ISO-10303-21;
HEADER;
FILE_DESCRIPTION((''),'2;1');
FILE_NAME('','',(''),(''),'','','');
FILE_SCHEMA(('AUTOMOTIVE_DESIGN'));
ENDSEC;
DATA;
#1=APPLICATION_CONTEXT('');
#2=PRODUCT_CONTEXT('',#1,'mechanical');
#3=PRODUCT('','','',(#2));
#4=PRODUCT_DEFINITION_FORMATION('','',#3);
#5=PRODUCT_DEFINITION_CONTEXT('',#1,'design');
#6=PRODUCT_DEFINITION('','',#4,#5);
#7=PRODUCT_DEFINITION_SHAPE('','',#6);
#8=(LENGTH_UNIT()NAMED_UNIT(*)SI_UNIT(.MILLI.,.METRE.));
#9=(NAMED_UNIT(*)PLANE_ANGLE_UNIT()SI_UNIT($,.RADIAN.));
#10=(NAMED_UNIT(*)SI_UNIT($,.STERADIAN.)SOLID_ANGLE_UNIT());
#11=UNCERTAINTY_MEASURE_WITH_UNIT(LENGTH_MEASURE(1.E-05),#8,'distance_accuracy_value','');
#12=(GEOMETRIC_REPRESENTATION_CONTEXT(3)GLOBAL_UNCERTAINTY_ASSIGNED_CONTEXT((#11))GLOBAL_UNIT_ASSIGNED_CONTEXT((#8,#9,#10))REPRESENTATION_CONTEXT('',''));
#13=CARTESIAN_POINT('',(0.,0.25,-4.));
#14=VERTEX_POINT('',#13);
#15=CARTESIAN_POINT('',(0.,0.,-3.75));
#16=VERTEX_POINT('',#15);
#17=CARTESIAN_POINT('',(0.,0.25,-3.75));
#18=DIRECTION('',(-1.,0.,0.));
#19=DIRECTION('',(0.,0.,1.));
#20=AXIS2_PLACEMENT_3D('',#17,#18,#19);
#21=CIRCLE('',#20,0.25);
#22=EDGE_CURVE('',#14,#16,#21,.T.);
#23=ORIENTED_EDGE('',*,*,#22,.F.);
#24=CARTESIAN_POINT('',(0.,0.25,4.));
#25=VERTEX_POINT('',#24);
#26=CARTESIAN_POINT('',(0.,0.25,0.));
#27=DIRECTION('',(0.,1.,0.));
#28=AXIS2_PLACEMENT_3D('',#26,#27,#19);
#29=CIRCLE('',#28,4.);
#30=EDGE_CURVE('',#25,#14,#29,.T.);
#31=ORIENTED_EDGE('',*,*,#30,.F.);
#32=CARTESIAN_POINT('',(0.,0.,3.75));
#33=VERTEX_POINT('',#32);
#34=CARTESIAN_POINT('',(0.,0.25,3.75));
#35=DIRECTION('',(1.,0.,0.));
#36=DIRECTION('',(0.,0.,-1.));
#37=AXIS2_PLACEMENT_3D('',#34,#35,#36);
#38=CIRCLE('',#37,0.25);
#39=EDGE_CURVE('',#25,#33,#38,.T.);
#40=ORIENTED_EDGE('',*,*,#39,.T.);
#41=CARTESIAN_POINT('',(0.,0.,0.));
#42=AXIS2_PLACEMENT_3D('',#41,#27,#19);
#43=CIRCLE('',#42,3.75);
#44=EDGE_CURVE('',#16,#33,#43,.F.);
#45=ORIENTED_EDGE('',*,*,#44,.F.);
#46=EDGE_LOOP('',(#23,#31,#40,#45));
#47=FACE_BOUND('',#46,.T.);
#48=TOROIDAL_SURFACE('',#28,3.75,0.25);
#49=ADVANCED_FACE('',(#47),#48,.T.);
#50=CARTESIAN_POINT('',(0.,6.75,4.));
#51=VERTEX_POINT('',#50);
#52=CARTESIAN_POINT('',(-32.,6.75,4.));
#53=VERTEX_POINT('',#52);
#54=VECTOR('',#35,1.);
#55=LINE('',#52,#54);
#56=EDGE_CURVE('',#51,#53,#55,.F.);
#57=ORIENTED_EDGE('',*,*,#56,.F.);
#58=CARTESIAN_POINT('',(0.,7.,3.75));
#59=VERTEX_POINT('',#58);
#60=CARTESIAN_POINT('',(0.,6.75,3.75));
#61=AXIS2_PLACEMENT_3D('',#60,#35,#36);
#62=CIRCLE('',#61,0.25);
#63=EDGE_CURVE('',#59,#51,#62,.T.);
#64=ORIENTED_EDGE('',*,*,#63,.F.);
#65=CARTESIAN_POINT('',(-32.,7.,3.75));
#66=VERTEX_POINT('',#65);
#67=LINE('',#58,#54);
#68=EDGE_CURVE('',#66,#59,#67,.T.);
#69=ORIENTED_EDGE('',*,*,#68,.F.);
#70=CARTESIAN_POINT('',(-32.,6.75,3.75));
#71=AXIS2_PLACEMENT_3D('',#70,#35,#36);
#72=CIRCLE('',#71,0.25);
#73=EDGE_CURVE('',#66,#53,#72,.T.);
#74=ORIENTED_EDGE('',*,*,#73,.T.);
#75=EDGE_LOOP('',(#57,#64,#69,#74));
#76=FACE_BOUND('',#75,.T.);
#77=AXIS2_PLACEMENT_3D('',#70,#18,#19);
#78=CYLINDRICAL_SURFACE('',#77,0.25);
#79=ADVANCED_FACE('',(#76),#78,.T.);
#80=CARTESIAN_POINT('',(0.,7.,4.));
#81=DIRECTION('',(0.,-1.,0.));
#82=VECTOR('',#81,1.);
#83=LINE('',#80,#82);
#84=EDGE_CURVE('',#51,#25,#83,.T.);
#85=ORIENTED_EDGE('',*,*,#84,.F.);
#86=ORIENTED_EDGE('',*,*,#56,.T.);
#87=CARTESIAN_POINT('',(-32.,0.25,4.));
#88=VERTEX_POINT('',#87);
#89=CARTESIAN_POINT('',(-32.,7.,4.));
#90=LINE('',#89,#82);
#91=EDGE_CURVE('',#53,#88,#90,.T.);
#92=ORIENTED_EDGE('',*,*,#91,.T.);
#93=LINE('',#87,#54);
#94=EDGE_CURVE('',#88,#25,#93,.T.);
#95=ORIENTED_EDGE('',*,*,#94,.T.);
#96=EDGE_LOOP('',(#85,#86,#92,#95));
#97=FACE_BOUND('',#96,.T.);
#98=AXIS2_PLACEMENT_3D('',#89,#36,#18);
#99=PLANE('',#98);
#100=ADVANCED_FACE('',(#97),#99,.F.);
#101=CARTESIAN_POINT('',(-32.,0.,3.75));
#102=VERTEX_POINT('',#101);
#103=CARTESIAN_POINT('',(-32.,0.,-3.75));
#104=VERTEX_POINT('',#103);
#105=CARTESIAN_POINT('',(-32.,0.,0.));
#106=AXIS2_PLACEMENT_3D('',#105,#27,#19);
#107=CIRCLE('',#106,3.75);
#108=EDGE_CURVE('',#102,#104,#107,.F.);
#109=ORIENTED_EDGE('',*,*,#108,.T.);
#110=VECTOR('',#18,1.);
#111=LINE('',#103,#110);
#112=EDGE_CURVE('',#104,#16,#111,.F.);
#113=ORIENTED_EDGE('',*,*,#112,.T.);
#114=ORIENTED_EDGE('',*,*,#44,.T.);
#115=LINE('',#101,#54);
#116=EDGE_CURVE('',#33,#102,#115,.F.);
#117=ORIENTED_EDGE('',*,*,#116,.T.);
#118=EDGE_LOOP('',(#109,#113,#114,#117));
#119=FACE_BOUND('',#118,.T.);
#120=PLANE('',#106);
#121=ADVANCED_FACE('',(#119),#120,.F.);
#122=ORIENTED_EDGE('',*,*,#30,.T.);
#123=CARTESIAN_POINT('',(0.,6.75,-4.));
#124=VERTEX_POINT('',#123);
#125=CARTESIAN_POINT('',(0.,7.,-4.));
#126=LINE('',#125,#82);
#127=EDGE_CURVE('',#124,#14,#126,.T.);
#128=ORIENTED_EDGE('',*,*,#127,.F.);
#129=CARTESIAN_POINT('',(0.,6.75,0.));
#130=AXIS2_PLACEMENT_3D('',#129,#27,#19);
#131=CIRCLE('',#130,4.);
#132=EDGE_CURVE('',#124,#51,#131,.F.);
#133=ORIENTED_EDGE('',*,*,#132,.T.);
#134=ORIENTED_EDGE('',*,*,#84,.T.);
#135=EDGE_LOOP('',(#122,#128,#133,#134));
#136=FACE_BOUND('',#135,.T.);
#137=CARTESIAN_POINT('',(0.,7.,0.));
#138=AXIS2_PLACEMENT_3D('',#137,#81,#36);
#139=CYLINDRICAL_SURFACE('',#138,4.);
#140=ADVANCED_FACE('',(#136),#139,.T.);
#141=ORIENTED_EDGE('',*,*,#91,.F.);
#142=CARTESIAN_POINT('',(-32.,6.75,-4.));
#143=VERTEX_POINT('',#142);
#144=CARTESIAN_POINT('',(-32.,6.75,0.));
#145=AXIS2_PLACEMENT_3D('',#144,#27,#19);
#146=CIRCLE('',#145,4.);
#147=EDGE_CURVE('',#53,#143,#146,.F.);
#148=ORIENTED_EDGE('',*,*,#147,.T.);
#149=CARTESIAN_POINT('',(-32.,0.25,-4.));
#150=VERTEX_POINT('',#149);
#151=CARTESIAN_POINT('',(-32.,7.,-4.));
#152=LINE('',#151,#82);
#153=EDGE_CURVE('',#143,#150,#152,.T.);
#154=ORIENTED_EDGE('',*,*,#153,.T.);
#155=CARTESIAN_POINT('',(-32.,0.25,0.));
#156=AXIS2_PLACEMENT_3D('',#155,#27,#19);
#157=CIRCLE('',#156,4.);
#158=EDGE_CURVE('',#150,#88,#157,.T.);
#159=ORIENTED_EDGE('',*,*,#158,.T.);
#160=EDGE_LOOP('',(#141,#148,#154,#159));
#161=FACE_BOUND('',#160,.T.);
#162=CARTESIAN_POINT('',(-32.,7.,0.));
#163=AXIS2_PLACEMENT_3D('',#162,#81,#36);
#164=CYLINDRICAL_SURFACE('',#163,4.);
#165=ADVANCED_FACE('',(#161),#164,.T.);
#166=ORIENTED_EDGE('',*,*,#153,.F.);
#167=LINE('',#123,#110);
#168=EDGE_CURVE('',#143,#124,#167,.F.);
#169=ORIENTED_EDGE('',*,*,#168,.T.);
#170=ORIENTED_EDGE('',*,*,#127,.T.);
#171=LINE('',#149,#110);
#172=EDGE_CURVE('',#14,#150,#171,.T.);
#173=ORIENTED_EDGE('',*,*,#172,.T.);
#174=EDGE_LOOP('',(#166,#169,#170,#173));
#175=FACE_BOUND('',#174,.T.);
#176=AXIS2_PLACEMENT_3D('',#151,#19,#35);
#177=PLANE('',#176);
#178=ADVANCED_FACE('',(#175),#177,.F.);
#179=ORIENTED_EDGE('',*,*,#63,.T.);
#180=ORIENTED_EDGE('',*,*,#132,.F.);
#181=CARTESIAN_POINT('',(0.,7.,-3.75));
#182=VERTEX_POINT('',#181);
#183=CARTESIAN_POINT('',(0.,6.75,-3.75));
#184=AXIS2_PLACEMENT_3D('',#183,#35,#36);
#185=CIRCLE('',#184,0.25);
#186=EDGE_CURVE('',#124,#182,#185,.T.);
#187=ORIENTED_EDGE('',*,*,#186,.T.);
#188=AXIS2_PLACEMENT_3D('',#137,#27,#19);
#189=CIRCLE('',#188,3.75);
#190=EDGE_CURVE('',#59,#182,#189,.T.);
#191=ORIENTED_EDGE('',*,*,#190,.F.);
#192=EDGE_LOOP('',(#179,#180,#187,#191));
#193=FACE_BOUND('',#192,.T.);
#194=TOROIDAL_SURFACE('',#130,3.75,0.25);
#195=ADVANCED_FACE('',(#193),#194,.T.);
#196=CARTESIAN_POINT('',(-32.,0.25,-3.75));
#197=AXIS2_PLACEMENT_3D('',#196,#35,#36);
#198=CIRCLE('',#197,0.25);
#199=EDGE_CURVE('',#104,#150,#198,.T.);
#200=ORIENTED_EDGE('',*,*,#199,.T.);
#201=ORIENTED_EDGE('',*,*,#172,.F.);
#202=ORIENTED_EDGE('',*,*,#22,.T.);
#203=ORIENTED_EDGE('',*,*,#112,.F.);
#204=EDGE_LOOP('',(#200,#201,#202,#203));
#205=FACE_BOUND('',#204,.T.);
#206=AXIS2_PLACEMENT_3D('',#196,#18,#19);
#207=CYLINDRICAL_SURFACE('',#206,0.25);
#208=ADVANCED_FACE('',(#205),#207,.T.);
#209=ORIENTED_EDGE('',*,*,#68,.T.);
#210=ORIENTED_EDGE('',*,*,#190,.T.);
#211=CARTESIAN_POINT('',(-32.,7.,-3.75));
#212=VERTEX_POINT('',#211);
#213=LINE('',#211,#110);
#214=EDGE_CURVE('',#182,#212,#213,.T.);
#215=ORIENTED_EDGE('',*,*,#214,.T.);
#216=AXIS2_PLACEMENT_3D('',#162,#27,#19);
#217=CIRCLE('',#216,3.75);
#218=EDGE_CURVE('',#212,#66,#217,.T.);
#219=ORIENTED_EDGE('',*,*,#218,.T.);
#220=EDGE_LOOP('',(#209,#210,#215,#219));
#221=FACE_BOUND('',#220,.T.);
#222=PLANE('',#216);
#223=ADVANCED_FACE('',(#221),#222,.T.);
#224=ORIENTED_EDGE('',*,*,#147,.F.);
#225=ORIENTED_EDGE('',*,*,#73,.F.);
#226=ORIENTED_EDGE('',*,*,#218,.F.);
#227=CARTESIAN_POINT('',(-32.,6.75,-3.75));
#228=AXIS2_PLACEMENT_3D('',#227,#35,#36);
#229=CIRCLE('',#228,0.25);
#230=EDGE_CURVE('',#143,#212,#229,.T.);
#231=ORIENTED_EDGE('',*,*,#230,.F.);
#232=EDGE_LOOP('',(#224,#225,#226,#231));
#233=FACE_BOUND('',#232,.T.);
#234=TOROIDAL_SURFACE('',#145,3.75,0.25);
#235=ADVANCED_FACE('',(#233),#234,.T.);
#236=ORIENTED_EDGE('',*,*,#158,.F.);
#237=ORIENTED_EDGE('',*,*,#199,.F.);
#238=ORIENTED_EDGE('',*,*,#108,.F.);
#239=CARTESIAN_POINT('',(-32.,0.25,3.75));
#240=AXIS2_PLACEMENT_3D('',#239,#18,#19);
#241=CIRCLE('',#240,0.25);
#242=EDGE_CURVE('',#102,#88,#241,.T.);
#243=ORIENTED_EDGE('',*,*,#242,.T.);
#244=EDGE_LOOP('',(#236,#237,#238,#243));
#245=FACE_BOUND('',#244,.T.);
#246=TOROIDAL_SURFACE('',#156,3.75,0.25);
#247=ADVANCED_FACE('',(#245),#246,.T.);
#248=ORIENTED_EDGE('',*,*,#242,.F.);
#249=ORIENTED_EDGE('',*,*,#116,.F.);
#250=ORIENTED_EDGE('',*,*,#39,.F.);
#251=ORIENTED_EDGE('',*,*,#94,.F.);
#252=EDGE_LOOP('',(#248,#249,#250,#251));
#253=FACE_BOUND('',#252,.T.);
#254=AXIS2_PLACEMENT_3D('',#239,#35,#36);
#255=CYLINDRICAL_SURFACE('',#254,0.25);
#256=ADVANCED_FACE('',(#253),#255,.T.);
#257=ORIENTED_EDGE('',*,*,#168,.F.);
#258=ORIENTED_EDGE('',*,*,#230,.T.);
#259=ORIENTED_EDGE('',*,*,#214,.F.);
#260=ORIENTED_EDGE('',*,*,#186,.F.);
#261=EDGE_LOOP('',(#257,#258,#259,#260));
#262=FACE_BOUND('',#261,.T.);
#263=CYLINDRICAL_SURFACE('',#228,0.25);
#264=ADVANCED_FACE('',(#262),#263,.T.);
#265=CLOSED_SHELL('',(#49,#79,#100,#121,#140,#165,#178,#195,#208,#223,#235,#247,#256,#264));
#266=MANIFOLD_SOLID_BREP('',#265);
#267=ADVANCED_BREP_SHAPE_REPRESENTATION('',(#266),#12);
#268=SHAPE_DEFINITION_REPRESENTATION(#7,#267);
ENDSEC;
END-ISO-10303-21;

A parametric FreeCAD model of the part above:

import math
import FreeCAD as App
import Part
import Sketcher

V = App.Vector


def edges_at(feature, points):
    """Names of the edges that pass closest to the given points."""
    edges = feature.Shape.Edges
    near = lambda p: min(range(len(edges)), key=lambda i: edges[i].distToShape(Part.Vertex(*p))[0])
    return sorted({f"Edge{near(p) + 1}" for p in points})

doc = App.newDocument("Part")
params = doc.addObject("Spreadsheet::Sheet", "Params")
for row, (alias, value) in enumerate([
    ("sketch1_radius", "4 mm"),
    ("sketch1_width", "32 mm"),
    ("pad1_length", "7 mm"),
    ("fillet_radius", "0.25 mm"),
], start=1):
    params.set(f"A{row}", alias)
    params.set(f"B{row}", "=" + value)
    params.setAlias(f"B{row}", alias)

body = doc.addObject("PartDesign::Body", "Body")

# Sketch on XZ plane
sketch1 = doc.addObject("Sketcher::SketchObject", "Sketch")
body.addObject(sketch1)
sketch1.AttachmentSupport = (doc.XZ_Plane, [""])
sketch1.MapMode = "FlatFace"
sketch1.addGeometry([
    Part.LineSegment(V(0, -4, 0), V(-32, -4, 0)),
    Part.ArcOfCircle(Part.Circle(V(-32, 0, 0), V(0, 0, 1), 4), math.radians(90), math.radians(270)),
    Part.LineSegment(V(-32, 4, 0), V(0, 4, 0)),
    Part.ArcOfCircle(Part.Circle(V(0, 0, 0), V(0, 0, 1), 4), math.radians(-90), math.radians(90)),
], False)
sketch1.addConstraint([
    Sketcher.Constraint("Tangent", 0, 2, 1, 2),
    Sketcher.Constraint("Tangent", 1, 1, 2, 1),
    Sketcher.Constraint("Tangent", 2, 2, 3, 2),
    Sketcher.Constraint("Tangent", 3, 1, 0, 1),
    Sketcher.Constraint("Horizontal", 0),
    Sketcher.Constraint("Horizontal", 2),
    Sketcher.Constraint("Coincident", 3, 3, -1, 1),
    Sketcher.Constraint("Radius", 1, 4.0),
    Sketcher.Constraint("DistanceX", 0, 2, 0, 1, 32.0),
])
sketch1.setExpression("Constraints[7]", "Params.sketch1_radius")
sketch1.setExpression("Constraints[8]", "Params.sketch1_width")
pad1 = doc.addObject("PartDesign::Pad", "Pad")
body.addObject(pad1)
pad1.Profile = sketch1
pad1.setExpression("Length", "Params.pad1_length")
pad1.Reversed = True
doc.recompute()

fillet = doc.addObject("PartDesign::Fillet", "Fillet")
body.addObject(fillet)
fillet.Base = (pad1, edges_at(pad1, [
    (4, 7, 0),
    (-16, 7, -4),
    (-36, 7, 0),
    (-16, 0, -4),
    (4, 0, 0),
    (-16, 0, 4),
    (-36, 0, 0),
    (-16, 7, 4),
]))
fillet.setExpression("Radius", "Params.fillet_radius")

doc.recompute()
